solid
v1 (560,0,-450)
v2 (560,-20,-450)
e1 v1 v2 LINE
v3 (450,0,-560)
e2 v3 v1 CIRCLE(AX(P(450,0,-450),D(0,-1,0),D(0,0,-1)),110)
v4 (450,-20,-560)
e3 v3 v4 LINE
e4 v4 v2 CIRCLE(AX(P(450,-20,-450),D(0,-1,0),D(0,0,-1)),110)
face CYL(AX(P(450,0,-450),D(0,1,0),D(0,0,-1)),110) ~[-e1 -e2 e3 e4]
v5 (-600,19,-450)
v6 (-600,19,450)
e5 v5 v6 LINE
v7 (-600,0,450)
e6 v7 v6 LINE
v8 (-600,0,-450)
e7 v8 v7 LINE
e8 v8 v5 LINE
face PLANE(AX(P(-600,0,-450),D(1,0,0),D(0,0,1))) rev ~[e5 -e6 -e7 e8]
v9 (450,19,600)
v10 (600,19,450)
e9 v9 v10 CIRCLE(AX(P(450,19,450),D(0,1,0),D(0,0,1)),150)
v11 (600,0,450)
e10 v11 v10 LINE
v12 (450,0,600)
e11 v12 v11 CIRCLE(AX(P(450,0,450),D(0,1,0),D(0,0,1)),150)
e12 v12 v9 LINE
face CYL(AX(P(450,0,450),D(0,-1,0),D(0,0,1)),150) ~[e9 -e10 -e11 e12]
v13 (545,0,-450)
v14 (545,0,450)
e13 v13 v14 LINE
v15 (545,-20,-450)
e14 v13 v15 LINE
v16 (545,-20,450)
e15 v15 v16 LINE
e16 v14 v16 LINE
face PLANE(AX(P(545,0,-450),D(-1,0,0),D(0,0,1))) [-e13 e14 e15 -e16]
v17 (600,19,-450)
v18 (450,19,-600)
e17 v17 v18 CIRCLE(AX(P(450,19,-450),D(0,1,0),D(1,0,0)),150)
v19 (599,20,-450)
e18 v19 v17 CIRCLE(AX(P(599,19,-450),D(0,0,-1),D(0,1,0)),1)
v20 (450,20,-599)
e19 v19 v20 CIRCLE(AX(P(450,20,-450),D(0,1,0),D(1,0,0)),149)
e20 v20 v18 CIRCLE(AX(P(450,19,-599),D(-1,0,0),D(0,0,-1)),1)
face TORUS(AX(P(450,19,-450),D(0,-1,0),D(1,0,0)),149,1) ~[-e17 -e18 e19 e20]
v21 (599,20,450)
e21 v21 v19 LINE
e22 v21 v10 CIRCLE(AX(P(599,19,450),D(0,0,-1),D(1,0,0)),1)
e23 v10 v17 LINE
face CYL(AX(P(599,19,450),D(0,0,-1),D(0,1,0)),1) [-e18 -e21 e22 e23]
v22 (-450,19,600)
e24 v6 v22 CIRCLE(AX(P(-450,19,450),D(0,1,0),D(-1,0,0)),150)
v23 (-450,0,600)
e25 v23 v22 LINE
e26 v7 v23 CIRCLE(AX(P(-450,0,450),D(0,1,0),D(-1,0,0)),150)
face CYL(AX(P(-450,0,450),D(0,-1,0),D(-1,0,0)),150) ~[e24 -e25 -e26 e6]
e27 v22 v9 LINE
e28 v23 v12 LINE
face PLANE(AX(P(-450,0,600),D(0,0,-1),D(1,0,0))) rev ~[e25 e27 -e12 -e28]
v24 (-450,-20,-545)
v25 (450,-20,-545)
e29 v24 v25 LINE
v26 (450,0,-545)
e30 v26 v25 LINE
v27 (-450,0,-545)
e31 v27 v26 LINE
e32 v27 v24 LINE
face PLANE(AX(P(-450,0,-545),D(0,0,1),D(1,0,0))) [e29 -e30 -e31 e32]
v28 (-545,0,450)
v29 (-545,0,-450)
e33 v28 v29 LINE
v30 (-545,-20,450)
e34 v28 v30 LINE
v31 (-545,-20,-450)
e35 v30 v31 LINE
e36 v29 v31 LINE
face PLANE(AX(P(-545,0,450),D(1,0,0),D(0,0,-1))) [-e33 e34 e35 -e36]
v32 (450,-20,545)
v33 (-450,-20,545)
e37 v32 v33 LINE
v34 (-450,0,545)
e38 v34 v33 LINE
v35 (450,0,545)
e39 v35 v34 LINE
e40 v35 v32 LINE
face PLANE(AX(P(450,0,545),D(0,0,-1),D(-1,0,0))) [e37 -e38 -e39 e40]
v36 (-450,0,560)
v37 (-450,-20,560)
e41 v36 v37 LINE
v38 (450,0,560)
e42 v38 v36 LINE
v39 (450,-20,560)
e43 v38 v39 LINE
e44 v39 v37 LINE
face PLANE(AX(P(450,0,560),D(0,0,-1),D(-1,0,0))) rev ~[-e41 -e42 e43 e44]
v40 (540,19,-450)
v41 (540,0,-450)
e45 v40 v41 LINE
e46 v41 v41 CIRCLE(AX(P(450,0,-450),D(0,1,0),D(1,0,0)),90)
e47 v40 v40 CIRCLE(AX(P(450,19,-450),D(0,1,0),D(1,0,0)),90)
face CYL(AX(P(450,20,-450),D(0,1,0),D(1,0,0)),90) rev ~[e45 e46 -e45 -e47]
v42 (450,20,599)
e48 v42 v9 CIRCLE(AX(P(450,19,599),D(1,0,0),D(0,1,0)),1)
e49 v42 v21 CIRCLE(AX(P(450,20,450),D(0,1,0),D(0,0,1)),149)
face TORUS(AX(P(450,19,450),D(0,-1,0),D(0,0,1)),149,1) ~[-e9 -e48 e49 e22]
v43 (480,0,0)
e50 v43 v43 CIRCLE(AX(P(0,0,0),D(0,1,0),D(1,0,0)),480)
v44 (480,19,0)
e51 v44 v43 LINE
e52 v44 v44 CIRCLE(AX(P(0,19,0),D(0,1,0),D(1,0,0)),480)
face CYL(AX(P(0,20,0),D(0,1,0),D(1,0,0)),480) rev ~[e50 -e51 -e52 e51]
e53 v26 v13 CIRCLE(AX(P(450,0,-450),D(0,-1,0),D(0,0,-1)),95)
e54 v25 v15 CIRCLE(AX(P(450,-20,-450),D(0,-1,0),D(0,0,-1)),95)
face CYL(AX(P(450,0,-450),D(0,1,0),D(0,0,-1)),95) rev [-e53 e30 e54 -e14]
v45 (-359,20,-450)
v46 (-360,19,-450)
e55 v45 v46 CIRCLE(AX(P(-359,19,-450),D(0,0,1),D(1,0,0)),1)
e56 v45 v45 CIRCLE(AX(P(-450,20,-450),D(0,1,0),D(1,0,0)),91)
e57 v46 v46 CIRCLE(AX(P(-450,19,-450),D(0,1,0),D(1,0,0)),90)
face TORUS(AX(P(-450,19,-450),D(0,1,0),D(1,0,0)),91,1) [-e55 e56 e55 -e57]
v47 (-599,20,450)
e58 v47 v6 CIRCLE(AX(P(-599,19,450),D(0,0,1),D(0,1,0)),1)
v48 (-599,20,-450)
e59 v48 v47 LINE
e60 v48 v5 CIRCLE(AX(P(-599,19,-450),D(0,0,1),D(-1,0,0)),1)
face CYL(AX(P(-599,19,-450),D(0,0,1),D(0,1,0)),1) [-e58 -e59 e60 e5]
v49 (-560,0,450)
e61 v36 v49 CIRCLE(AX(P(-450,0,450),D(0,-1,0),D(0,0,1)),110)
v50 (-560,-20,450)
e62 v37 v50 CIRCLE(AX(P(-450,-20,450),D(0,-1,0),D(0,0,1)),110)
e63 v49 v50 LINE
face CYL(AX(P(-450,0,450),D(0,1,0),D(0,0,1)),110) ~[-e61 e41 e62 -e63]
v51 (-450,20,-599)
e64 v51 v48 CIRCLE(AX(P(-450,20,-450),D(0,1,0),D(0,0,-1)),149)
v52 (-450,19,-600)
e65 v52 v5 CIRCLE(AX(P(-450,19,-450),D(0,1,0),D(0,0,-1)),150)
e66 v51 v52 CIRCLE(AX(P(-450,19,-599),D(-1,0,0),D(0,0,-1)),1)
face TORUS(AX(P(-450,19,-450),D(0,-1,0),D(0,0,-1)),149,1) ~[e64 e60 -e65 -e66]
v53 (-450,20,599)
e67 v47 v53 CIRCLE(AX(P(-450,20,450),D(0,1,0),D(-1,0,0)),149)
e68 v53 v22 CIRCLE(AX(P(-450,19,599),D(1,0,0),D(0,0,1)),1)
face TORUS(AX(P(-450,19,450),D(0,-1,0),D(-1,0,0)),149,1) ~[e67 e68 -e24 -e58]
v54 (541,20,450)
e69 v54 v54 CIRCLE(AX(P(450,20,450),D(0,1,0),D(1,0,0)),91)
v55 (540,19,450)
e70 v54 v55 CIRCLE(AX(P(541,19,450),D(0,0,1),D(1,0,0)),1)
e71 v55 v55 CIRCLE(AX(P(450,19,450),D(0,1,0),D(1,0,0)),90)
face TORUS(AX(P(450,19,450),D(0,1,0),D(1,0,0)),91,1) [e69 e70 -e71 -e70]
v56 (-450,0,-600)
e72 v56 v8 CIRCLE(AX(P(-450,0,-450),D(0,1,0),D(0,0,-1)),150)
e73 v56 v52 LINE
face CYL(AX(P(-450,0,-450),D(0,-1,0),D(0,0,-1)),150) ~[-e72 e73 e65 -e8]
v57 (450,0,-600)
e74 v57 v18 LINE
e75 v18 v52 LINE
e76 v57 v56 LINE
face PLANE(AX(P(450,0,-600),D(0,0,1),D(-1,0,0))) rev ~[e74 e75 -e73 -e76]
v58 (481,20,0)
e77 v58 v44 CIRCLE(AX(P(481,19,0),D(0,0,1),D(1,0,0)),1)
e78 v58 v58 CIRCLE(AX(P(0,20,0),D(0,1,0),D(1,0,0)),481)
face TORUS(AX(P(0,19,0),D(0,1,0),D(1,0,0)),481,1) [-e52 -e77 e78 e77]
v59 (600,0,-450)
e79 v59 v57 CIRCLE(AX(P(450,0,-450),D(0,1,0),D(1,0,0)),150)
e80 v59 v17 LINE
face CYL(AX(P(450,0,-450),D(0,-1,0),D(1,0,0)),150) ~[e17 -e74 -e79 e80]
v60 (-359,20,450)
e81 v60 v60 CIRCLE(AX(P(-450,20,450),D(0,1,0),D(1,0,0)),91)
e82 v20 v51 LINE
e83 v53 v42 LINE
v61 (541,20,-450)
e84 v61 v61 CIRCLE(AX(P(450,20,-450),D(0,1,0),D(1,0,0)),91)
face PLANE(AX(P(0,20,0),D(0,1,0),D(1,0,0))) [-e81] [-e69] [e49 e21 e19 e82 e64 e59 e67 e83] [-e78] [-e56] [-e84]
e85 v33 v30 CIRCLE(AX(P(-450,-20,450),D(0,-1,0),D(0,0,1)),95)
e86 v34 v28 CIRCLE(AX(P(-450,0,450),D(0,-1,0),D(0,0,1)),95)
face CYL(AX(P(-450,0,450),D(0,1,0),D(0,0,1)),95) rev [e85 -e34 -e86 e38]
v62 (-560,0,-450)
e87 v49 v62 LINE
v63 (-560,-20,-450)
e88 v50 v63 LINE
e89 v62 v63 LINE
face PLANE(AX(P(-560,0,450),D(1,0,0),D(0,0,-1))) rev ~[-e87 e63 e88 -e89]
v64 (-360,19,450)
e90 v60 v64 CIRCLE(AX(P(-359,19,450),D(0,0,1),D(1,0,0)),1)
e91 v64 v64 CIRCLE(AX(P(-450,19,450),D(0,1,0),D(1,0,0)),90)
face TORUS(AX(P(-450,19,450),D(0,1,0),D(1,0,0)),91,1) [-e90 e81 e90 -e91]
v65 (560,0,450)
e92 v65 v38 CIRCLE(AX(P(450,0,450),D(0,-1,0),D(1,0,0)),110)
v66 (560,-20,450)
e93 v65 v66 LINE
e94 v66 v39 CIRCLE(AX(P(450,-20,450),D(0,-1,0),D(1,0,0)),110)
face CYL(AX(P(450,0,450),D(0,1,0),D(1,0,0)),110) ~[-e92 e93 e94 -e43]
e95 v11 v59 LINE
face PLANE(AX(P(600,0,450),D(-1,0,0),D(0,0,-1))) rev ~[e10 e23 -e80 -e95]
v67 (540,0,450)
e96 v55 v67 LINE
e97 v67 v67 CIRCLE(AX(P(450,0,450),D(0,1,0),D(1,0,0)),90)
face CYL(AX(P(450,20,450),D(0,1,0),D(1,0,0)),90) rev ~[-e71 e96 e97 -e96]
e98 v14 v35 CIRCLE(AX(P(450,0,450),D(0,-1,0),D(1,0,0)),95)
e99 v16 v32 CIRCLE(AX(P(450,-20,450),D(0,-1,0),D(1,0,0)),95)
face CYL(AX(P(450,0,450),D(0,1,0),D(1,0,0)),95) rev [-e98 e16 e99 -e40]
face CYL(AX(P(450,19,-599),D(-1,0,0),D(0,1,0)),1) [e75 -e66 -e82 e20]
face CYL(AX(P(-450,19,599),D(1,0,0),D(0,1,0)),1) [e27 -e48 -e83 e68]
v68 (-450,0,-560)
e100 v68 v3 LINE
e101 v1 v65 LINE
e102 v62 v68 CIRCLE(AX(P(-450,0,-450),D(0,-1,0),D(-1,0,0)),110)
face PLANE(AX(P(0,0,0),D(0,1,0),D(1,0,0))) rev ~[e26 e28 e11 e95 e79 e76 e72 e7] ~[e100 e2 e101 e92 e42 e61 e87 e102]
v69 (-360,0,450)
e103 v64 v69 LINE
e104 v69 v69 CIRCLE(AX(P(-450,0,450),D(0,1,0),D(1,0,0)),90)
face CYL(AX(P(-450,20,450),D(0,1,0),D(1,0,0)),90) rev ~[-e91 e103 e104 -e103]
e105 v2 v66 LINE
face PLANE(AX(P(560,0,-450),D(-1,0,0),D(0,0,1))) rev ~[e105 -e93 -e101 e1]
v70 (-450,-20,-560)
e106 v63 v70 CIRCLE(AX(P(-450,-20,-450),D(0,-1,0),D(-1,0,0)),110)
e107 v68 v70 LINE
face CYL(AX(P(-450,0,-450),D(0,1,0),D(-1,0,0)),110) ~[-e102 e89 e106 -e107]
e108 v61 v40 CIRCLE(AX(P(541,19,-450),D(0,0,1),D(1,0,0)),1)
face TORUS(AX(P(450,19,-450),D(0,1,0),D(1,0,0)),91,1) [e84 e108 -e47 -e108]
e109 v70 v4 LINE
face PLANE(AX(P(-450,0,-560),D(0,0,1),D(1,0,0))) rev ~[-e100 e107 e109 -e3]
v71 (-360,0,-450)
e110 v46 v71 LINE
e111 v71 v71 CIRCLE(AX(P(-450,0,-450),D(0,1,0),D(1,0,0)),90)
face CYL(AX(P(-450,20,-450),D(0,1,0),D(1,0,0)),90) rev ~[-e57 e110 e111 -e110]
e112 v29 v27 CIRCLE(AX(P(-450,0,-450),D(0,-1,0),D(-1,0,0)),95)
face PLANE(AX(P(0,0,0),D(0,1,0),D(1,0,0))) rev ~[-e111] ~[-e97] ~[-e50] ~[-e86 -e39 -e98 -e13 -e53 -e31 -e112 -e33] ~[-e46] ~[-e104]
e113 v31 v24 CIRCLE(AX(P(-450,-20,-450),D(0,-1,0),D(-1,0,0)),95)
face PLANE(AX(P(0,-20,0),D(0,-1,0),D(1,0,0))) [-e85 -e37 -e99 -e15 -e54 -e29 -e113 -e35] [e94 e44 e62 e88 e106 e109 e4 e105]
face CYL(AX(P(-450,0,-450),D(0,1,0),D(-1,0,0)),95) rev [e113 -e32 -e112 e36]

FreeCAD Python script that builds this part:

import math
import FreeCAD as App
import Part
import Sketcher
from FreeCAD import Vector
Q = App.Units.Quantity


def edges_at(feature, points):
    """Names of the edges that pass closest to the given points."""
    edges = feature.Shape.Edges
    near = lambda p: min(range(len(edges)), key=lambda i: edges[i].distToShape(Part.Vertex(*p))[0])
    return sorted({f"Edge{near(p) + 1}" for p in points})

doc = App.newDocument("Part")
body = doc.addObject("PartDesign::Body", "Body")

# Sketch on XZ plane
sketch1 = doc.addObject("Sketcher::SketchObject", "Sketch")
body.addObject(sketch1)
sketch1.AttachmentSupport = (doc.XZ_Plane, [""])
sketch1.MapMode = "FlatFace"
sketch1.addGeometry([
    Part.LineSegment(Vector(-450, 600, 0), Vector(450, 600, 0)),  # 0
    Part.ArcOfCircle(Part.Circle(Vector(450, 450, 0), Vector(0, 0, 1), 150), math.radians(0), math.radians(90)),  # 1
    Part.LineSegment(Vector(600, 450, 0), Vector(600, -450, 0)),  # 2
    Part.ArcOfCircle(Part.Circle(Vector(450, -450, 0), Vector(0, 0, 1), 150), math.radians(-90), math.radians(0)),  # 3
    Part.LineSegment(Vector(450, -600, 0), Vector(-450, -600, 0)),  # 4
    Part.ArcOfCircle(Part.Circle(Vector(-450, -450, 0), Vector(0, 0, 1), 150), math.radians(180), math.radians(270)),  # 5
    Part.LineSegment(Vector(-600, -450, 0), Vector(-600, 450, 0)),  # 6
    Part.ArcOfCircle(Part.Circle(Vector(-450, 450, 0), Vector(0, 0, 1), 150), math.radians(90), math.radians(180)),  # 7
], False)
sketch1.addConstraint([
    Sketcher.Constraint("Tangent", 0, 2, 1, 2),
    Sketcher.Constraint("Tangent", 1, 1, 2, 1),
    Sketcher.Constraint("Tangent", 2, 2, 3, 2),
    Sketcher.Constraint("Tangent", 3, 1, 4, 1),
    Sketcher.Constraint("Tangent", 4, 2, 5, 2),
    Sketcher.Constraint("Tangent", 5, 1, 6, 1),
    Sketcher.Constraint("Tangent", 6, 2, 7, 2),
    Sketcher.Constraint("Tangent", 7, 1, 0, 1),
    Sketcher.Constraint("Horizontal", 0),
    Sketcher.Constraint("Vertical", 2),
    Sketcher.Constraint("Horizontal", 4),
    Sketcher.Constraint("Vertical", 6),
    Sketcher.Constraint("Equal", 1, 3),
    Sketcher.Constraint("Equal", 3, 5),
    Sketcher.Constraint("Equal", 5, 7),
    Sketcher.Constraint("Symmetric", 1, 3, 5, 3, -1, 1),
    Sketcher.Constraint("Equal", 4, 2),
    Sketcher.Constraint("Radius", 1, Q("150 mm")),
    Sketcher.Constraint("DistanceX", 0, 1, 0, 2, Q("900 mm")),
])
pad1 = doc.addObject("PartDesign::Pad", "Pad")
body.addObject(pad1)
pad1.Profile = sketch1
pad1.Length = 20
pad1.Reversed = True

# Sketch on XZ plane
sketch2 = doc.addObject("Sketcher::SketchObject", "Sketch001")
body.addObject(sketch2)
sketch2.AttachmentSupport = (doc.XZ_Plane, [""])
sketch2.MapMode = "FlatFace"
sketch2.AttachmentOffset = App.Placement(Vector(0, 0, -20), App.Rotation())
sketch2.addGeometry([
    Part.Circle(Vector(-450, -450, 0), Vector(0, 0, 1), 90),
    Part.Circle(Vector(450, -450, 0), Vector(0, 0, 1), 90),
    Part.Circle(Vector(-450, 450, 0), Vector(0, 0, 1), 90),
    Part.Circle(Vector(450, 450, 0), Vector(0, 0, 1), 90),
], False)
sketch2.addConstraint([
    Sketcher.Constraint("Equal", 0, 1),
    Sketcher.Constraint("Equal", 1, 2),
    Sketcher.Constraint("Equal", 2, 3),
    Sketcher.Constraint("Symmetric", 1, 3, 2, 3, -1, 1),
    Sketcher.Constraint("Symmetric", 0, 3, 3, 3, -1, 1),
    Sketcher.Constraint("Symmetric", 0, 3, 1, 3, -2),
    Sketcher.Constraint("Diameter", 0, Q("180 mm")),
    Sketcher.Constraint("DistanceX", 0, 3, -1, 1, Q("450 mm")),
    Sketcher.Constraint("DistanceY", 0, 3, -1, 1, Q("450 mm")),
])
pocket1 = doc.addObject("PartDesign::Pocket", "Pocket")
body.addObject(pocket1)
pocket1.Profile = sketch2
pocket1.Type = "ThroughAll"
pocket1.Reversed = True

# Sketch on XZ plane
sketch3 = doc.addObject("Sketcher::SketchObject", "Sketch002")
body.addObject(sketch3)
sketch3.AttachmentSupport = (doc.XZ_Plane, [""])
sketch3.MapMode = "FlatFace"
sketch3.AttachmentOffset = App.Placement(Vector(0, 0, -20), App.Rotation())
sketch3.addGeometry(Part.Circle(Vector(0, 0, 0), Vector(0, 0, 1), 480), False)
sketch3.addConstraint([
    Sketcher.Constraint("Coincident", 0, 3, -1, 1),
    Sketcher.Constraint("Diameter", 0, Q("960 mm")),
])
pocket2 = doc.addObject("PartDesign::Pocket", "Pocket001")
body.addObject(pocket2)
pocket2.Profile = sketch3
pocket2.Type = "ThroughAll"
pocket2.Reversed = True

# Sketch on XZ plane
sketch4 = doc.addObject("Sketcher::SketchObject", "Sketch003")
body.addObject(sketch4)
sketch4.AttachmentSupport = (doc.XZ_Plane, [""])
sketch4.MapMode = "FlatFace"
sketch4.addGeometry([
    Part.LineSegment(Vector(560, -450, 0), Vector(560, 450, 0)),  # 0
    Part.ArcOfCircle(Part.Circle(Vector(450, 450, 0), Vector(0, 0, 1), 110), math.radians(0), math.radians(90)),  # 1
    Part.LineSegment(Vector(450, 560, 0), Vector(-450, 560, 0)),  # 2
    Part.ArcOfCircle(Part.Circle(Vector(-450, 450, 0), Vector(0, 0, 1), 110), math.radians(90), math.radians(180)),  # 3
    Part.LineSegment(Vector(-560, 450, 0), Vector(-560, -450, 0)),  # 4
    Part.ArcOfCircle(Part.Circle(Vector(-450, -450, 0), Vector(0, 0, 1), 110), math.radians(180), math.radians(270)),  # 5
    Part.LineSegment(Vector(-450, -560, 0), Vector(450, -560, 0)),  # 6
    Part.ArcOfCircle(Part.Circle(Vector(450, -450, 0), Vector(0, 0, 1), 110), math.radians(-90), math.radians(0)),  # 7
    Part.LineSegment(Vector(545, 450, 0), Vector(545, -450, 0)),  # 8
    Part.ArcOfCircle(Part.Circle(Vector(450, -450, 0), Vector(0, 0, 1), 95), math.radians(-90), math.radians(0)),  # 9
    Part.LineSegment(Vector(450, -545, 0), Vector(-450, -545, 0)),  # 10
    Part.ArcOfCircle(Part.Circle(Vector(-450, -450, 0), Vector(0, 0, 1), 95), math.radians(180), math.radians(270)),  # 11
    Part.LineSegment(Vector(-545, -450, 0), Vector(-545, 450, 0)),  # 12
    Part.ArcOfCircle(Part.Circle(Vector(-450, 450, 0), Vector(0, 0, 1), 95), math.radians(90), math.radians(180)),  # 13
    Part.LineSegment(Vector(-450, 545, 0), Vector(450, 545, 0)),  # 14
    Part.ArcOfCircle(Part.Circle(Vector(450, 450, 0), Vector(0, 0, 1), 95), math.radians(0), math.radians(90)),  # 15
], False)
sketch4.addConstraint([
    Sketcher.Constraint("Tangent", 0, 2, 1, 1),
    Sketcher.Constraint("Tangent", 1, 2, 2, 1),
    Sketcher.Constraint("Tangent", 2, 2, 3, 1),
    Sketcher.Constraint("Tangent", 3, 2, 4, 1),
    Sketcher.Constraint("Tangent", 4, 2, 5, 1),
    Sketcher.Constraint("Tangent", 5, 2, 6, 1),
    Sketcher.Constraint("Tangent", 6, 2, 7, 1),
    Sketcher.Constraint("Tangent", 7, 2, 0, 1),
    Sketcher.Constraint("Tangent", 8, 2, 9, 2),
    Sketcher.Constraint("Tangent", 9, 1, 10, 1),
    Sketcher.Constraint("Tangent", 10, 2, 11, 2),
    Sketcher.Constraint("Tangent", 11, 1, 12, 1),
    Sketcher.Constraint("Tangent", 12, 2, 13, 2),
    Sketcher.Constraint("Tangent", 13, 1, 14, 1),
    Sketcher.Constraint("Tangent", 14, 2, 15, 2),
    Sketcher.Constraint("Tangent", 15, 1, 8, 1),
    Sketcher.Constraint("Vertical", 0),
    Sketcher.Constraint("Horizontal", 2),
    Sketcher.Constraint("Vertical", 4),
    Sketcher.Constraint("Horizontal", 6),
    Sketcher.Constraint("Vertical", 8),
    Sketcher.Constraint("Horizontal", 10),
    Sketcher.Constraint("Vertical", 12),
    Sketcher.Constraint("Horizontal", 14),
    Sketcher.Constraint("Coincident", 9, 3, 7, 3),
    Sketcher.Constraint("Coincident", 11, 3, 5, 3),
    Sketcher.Constraint("Coincident", 13, 3, 3, 3),
    Sketcher.Constraint("Equal", 1, 3),
    Sketcher.Constraint("Equal", 3, 5),
    Sketcher.Constraint("Equal", 5, 7),
    Sketcher.Constraint("Equal", 13, 15),
    Sketcher.Constraint("Symmetric", 1, 3, 5, 3, -1, 1),
    Sketcher.Constraint("Equal", 14, 0),
    Sketcher.Constraint("Radius", 1, Q("110 mm")),
    Sketcher.Constraint("Radius", 9, Q("95 mm")),
    Sketcher.Constraint("DistanceX", 2, 2, 2, 1, Q("900 mm")),
])
pad2 = doc.addObject("PartDesign::Pad", "Pad001")
body.addObject(pad2)
pad2.Profile = sketch4
pad2.Length = 20
doc.recompute()

fillet = doc.addObject("PartDesign::Fillet", "Fillet")
body.addObject(fillet)
fillet.Base = (pad2, edges_at(pad2, [
    (-556.066, 20, -556.066),
    (-600, 20, 0),
    (-556.066, 20, 556.066),
    (0, 20, 600),
    (556.066, 20, 556.066),
    (600, 20, 0),
    (556.066, 20, -556.066),
    (0, 20, -600),
]))
fillet.Radius = 1
doc.recompute()

fillet2 = doc.addObject("PartDesign::Fillet", "Fillet001")
body.addObject(fillet2)
fillet2.Base = (fillet, edges_at(fillet, [(-480, 20, 0)]))
fillet2.Radius = 1
doc.recompute()

fillet3 = doc.addObject("PartDesign::Fillet", "Fillet002")
body.addObject(fillet3)
fillet3.Base = (fillet2, edges_at(fillet2, [
    (-540, 20, -450),
    (360, 20, -450),
    (-540, 20, 450),
    (360, 20, 450),
]))
fillet3.Radius = 1

doc.recompute()
